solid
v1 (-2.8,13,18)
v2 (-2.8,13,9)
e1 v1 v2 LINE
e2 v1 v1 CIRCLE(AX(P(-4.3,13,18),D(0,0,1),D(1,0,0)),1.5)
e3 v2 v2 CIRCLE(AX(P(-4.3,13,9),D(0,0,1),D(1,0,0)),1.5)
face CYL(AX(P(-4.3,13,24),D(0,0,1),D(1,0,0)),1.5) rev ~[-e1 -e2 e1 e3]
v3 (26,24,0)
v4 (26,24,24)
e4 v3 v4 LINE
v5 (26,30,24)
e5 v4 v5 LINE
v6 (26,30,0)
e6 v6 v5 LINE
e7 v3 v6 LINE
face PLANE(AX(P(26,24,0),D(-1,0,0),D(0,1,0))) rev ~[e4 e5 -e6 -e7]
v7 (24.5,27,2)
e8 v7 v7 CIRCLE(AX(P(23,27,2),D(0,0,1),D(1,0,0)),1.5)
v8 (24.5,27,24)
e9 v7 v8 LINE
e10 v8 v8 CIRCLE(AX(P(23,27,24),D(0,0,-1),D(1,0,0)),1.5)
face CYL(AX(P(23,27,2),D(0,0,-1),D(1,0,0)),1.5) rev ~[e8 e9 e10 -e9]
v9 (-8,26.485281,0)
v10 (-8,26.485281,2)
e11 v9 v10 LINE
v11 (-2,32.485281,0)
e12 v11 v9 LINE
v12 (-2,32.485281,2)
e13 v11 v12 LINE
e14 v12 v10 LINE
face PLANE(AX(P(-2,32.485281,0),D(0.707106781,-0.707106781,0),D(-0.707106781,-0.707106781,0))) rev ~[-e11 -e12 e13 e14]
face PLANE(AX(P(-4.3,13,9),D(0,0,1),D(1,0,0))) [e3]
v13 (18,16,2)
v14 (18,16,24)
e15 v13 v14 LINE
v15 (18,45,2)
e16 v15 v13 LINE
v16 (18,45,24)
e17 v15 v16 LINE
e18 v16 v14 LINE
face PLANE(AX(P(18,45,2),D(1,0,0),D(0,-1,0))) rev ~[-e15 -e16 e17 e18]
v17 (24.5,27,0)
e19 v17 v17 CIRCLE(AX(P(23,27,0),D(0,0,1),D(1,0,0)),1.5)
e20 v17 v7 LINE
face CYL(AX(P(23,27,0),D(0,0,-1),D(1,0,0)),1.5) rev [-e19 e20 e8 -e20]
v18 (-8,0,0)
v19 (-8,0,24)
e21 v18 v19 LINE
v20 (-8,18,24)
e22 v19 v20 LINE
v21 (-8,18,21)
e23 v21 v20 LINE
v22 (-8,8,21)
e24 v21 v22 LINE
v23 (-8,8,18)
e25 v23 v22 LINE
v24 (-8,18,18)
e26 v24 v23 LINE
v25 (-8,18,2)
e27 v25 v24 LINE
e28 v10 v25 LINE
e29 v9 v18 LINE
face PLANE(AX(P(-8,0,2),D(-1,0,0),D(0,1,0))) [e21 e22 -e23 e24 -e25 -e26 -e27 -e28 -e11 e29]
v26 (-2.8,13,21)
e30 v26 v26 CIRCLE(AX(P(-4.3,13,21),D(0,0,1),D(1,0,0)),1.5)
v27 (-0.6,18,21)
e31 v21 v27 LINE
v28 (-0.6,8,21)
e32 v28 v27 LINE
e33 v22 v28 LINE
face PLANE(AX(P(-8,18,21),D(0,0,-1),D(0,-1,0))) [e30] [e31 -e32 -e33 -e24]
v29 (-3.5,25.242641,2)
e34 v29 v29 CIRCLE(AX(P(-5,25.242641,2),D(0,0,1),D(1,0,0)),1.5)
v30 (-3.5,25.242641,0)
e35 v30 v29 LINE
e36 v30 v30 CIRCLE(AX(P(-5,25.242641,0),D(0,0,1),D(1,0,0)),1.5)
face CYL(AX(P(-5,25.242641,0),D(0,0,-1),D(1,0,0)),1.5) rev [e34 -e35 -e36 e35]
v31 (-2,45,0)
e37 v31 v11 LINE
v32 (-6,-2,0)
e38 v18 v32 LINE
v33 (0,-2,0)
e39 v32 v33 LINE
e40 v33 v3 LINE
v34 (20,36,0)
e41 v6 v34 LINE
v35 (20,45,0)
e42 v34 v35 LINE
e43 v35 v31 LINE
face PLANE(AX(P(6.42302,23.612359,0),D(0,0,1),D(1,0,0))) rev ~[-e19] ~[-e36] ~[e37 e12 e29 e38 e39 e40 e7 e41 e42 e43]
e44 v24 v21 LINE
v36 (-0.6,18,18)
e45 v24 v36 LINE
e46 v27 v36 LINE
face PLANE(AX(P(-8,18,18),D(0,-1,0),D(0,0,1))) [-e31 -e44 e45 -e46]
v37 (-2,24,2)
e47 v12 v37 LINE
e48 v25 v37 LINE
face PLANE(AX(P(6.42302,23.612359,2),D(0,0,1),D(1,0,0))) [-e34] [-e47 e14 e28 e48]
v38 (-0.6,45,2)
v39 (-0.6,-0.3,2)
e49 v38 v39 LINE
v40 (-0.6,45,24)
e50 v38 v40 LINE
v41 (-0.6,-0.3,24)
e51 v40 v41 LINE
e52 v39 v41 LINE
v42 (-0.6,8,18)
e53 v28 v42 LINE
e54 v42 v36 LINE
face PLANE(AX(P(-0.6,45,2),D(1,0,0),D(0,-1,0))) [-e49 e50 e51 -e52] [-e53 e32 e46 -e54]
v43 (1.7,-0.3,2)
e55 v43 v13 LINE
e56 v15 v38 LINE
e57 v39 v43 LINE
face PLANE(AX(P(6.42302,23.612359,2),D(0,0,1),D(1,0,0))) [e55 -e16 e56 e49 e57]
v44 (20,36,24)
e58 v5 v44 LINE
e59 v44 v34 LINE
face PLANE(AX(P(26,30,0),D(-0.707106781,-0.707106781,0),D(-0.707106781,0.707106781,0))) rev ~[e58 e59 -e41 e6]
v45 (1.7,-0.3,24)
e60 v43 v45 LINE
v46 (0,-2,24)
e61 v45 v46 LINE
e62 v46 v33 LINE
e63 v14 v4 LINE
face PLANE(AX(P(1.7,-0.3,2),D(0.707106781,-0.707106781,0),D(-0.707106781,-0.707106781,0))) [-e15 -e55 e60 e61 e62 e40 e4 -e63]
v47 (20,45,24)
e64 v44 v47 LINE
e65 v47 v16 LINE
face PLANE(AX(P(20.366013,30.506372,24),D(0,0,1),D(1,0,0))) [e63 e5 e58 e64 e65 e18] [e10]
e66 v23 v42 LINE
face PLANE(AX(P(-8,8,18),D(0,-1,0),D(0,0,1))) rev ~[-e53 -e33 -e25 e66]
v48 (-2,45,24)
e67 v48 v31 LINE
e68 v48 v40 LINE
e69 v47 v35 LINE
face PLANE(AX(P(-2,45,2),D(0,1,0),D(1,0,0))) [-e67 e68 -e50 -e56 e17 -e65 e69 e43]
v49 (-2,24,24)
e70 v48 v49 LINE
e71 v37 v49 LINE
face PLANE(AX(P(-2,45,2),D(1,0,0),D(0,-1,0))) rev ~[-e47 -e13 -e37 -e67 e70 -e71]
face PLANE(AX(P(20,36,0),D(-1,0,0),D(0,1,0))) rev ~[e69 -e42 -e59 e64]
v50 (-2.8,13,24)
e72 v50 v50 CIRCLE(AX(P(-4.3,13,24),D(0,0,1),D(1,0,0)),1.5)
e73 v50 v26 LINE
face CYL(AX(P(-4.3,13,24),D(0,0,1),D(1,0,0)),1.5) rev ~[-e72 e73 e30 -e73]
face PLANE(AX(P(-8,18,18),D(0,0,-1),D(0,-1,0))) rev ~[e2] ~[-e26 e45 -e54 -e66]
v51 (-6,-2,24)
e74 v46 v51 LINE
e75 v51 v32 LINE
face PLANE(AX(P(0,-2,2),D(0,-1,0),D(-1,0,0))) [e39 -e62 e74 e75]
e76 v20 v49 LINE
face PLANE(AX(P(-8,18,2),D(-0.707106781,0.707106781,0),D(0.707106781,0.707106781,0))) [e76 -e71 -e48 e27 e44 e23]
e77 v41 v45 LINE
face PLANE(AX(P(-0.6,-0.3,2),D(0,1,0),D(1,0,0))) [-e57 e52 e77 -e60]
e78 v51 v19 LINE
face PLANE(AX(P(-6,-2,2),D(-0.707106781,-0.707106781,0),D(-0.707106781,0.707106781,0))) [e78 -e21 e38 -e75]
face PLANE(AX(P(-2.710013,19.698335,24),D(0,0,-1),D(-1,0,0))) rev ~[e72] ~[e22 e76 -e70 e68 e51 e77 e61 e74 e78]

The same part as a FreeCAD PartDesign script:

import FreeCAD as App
import Part
import Sketcher
from FreeCAD import Vector
Q = App.Units.Quantity


def add_polygon(sketch, points):
    """Adds a closed chain of lines whose ends are joined by coincident constraints."""
    first, n = sketch.GeometryCount, len(points)
    for a, b in zip(points, points[1:] + points[:1]):
        sketch.addGeometry(Part.LineSegment(App.Vector(*a, 0), App.Vector(*b, 0)), False)
    for i in range(n):
        sketch.addConstraint(Sketcher.Constraint("Coincident", first + i, 2, first + (i + 1) % n, 1))

doc = App.newDocument("Part")
params = doc.addObject("Spreadsheet::Sheet", "Params")
for row, (alias, value) in enumerate([
    ("sketch1_diameter", "3 mm"),
    ("sketch1_width", "6 mm"),
    ("sketch1_width2", "22 mm"),
    ("sketch1_height", "9 mm"),
    ("pad1_length", "2 mm"),
    ("sketch2_width", "6 mm"),
    ("sketch2_width2", "2 mm"),
    ("sketch2_height", "21 mm"),
    ("sketch2_height2", "18 mm"),
    ("sketch2_height3", "29 mm"),
    ("pad2_length", "22 mm"),
    ("sketch3_diameter", "3 mm"),
    ("pocket1_length", "32 mm"),
    ("sketch4_diameter", "3 mm"),
    ("pocket2_length", "15 mm"),
    ("sketch5_width", "10 mm"),
    ("sketch5_height", "3 mm"),
    ("pocket3_length", "8 mm"),
], start=1):
    params.set(f"A{row}", alias)
    params.set(f"B{row}", "=" + value)
    params.setAlias(f"B{row}", alias)

body = doc.addObject("PartDesign::Body", "Body")

sketch1 = body.newObject("Sketcher::SketchObject", "Sketch")
sketch1.AttachmentSupport = (doc.getObject("XY_Plane"), [""])
sketch1.MapMode = "FlatFace"
add_polygon(sketch1, [(-6, -2), (0, -2), (26, 24), (26, 30), (20, 36), (20, 45), (-2, 45), (-2, 32.485281), (-8, 26.485281), (-8, 0)])
sketch1.addGeometry(Part.Circle(Vector(-5, 25.242641, 0), Vector(0, 0, 1), 1.5), False)
sketch1.addGeometry(Part.Circle(Vector(23, 27, 0), Vector(0, 0, 1), 1.5), False)
sketch1.addConstraint([
    Sketcher.Constraint("Horizontal", 0),
    Sketcher.Constraint("Vertical", 2),
    Sketcher.Constraint("Vertical", 4),
    Sketcher.Constraint("Horizontal", 5),
    Sketcher.Constraint("Vertical", 6),
    Sketcher.Constraint("Vertical", 8),
    Sketcher.Constraint("Equal", 10, 11),
    Sketcher.Constraint("PointOnObject", 0, 2, -2),
    Sketcher.Constraint("PointOnObject", 8, 2, -1),
    Sketcher.Constraint("Perpendicular", 1, 3),
    Sketcher.Constraint("Perpendicular", 3, 7),
    Sketcher.Constraint("Perpendicular", 7, 9),
    Sketcher.Constraint("Equal", 0, 2),
    Sketcher.Constraint("Equal", 3, 7),
    Sketcher.Constraint("Diameter", 10, Q("3 mm")),
    Sketcher.Constraint("DistanceX", 0, 1, 0, 2, Q("6 mm")),
    Sketcher.Constraint("DistanceX", 5, 2, 5, 1, Q("22 mm")),
    Sketcher.Constraint("DistanceY", 4, 1, 4, 2, Q("9 mm")),
    Sketcher.Constraint("Angle", 1, Q("45 deg")),
    Sketcher.Constraint("DistanceX", 10, 3, -1, 1, Q("5 mm")),
    Sketcher.Constraint("DistanceX", -1, 1, 11, 3, Q("23 mm")),
    Sketcher.Constraint("DistanceY", -1, 1, 11, 3, Q("27 mm")),
    Sketcher.Constraint("DistanceY", 0, 2, -1, 1, Q("2 mm")),
    Sketcher.Constraint("DistanceX", -1, 1, 1, 2, Q("26 mm")),
    Sketcher.Constraint("DistanceY", 6, 2, 6, 1, Q("12.514719 mm")),
    Sketcher.Constraint("DistanceY", -1, 1, 10, 3, Q("25.242641 mm")),
])
sketch1.setExpression("Constraints[24]", "Params.sketch1_diameter")
sketch1.setExpression("Constraints[25]", "Params.sketch1_width")
sketch1.setExpression("Constraints[26]", "Params.sketch1_width2")
sketch1.setExpression("Constraints[27]", "Params.sketch1_height")
pad1 = body.newObject("PartDesign::Pad", "Pad")
pad1.Profile = sketch1
pad1.setExpression("Length", "Params.pad1_length")

sketch2 = body.newObject("Sketcher::SketchObject", "Sketch001")
sketch2.AttachmentSupport = (doc.getObject("XY_Plane"), [""])
sketch2.MapMode = "FlatFace"
sketch2.AttachmentOffset = App.Placement(Vector(0, 0, 2), App.Rotation())
add_polygon(sketch2, [(-2, 45), (-2, 24), (-8, 18), (-8, 0), (-6, -2), (0, -2), (1.7, -0.3), (-0.6, -0.3), (-0.6, 45)])
add_polygon(sketch2, [(20, 45), (18, 45), (18, 16), (26, 24), (26, 30), (20, 36)])
sketch2.addConstraint([
    Sketcher.Constraint("Vertical", 0),
    Sketcher.Constraint("Vertical", 2),
    Sketcher.Constraint("Horizontal", 4),
    Sketcher.Constraint("Horizontal", 6),
    Sketcher.Constraint("Vertical", 7),
    Sketcher.Constraint("Horizontal", 8),
    Sketcher.Constraint("Horizontal", 9),
    Sketcher.Constraint("Vertical", 10),
    Sketcher.Constraint("Vertical", 12),
    Sketcher.Constraint("Vertical", 14),
    Sketcher.Constraint("PointOnObject", 2, 2, -1),
    Sketcher.Constraint("PointOnObject", 4, 2, -2),
    Sketcher.Constraint("Perpendicular", 1, 3),
    Sketcher.Constraint("Perpendicular", 3, 5),
    Sketcher.Constraint("Parallel", 5, 11),
    Sketcher.Constraint("Perpendicular", 11, 13),
    Sketcher.Constraint("Horizontal", 8, 2, 9, 2),
    Sketcher.Constraint("Horizontal", 0, 2, 11, 2),
    Sketcher.Constraint("Equal", 4, 12),
    Sketcher.Constraint("Equal", 1, 13),
    Sketcher.Constraint("DistanceX", 4, 1, 4, 2, Q("6 mm")),
    Sketcher.Constraint("DistanceX", 9, 2, 9, 1, Q("2 mm")),
    Sketcher.Constraint("DistanceY", 0, 2, 0, 1, Q("21 mm")),
    Sketcher.Constraint("DistanceY", 2, 2, 2, 1, Q("18 mm")),
    Sketcher.Constraint("DistanceY", 10, 2, 10, 1, Q("29 mm")),
    Sketcher.Constraint("DistanceY", 14, 1, 14, 2, Q("9 mm")),
    Sketcher.Constraint("DistanceX", 6, 2, 6, 1, Q("2.3 mm")),
    Sketcher.Constraint("DistanceX", 8, 2, 8, 1, Q("1.4 mm")),
    Sketcher.Constraint("DistanceY", 7, 1, 7, 2, Q("45.3 mm")),
    Sketcher.Constraint("DistanceX", -1, 1, 9, 2, Q("18 mm")),
])
sketch2.setExpression("Constraints[35]", "Params.sketch2_width")
sketch2.setExpression("Constraints[36]", "Params.sketch2_width2")
sketch2.setExpression("Constraints[37]", "Params.sketch2_height")
sketch2.setExpression("Constraints[38]", "Params.sketch2_height2")
sketch2.setExpression("Constraints[39]", "Params.sketch2_height3")
pad2 = body.newObject("PartDesign::Pad", "Pad001")
pad2.Profile = sketch2
pad2.setExpression("Length", "Params.pad2_length")

sketch3 = body.newObject("Sketcher::SketchObject", "Sketch002")
sketch3.AttachmentSupport = (doc.getObject("XY_Plane"), [""])
sketch3.MapMode = "FlatFace"
sketch3.AttachmentOffset = App.Placement(Vector(0, 0, 2), App.Rotation())
sketch3.addGeometry(Part.Circle(Vector(23, 27, 0), Vector(0, 0, 1), 1.5), False)
sketch3.addConstraint([
    Sketcher.Constraint("Diameter", 0, Q("3 mm")),
    Sketcher.Constraint("DistanceX", -1, 1, 0, 3, Q("23 mm")),
    Sketcher.Constraint("DistanceY", -1, 1, 0, 3, Q("27 mm")),
])
sketch3.setExpression("Constraints[0]", "Params.sketch3_diameter")
pocket1 = body.newObject("PartDesign::Pocket", "Pocket")
pocket1.Profile = sketch3
pocket1.setExpression("Length", "Params.pocket1_length")
pocket1.Reversed = True

sketch4 = body.newObject("Sketcher::SketchObject", "Sketch003")
sketch4.AttachmentSupport = (doc.getObject("XY_Plane"), [""])
sketch4.MapMode = "FlatFace"
sketch4.AttachmentOffset = App.Placement(Vector(0, 0, 24), App.Rotation())
sketch4.addGeometry(Part.Circle(Vector(-4.3, 13, 0), Vector(0, 0, 1), 1.5), False)
sketch4.addConstraint([
    Sketcher.Constraint("Diameter", 0, Q("3 mm")),
    Sketcher.Constraint("DistanceY", -1, 1, 0, 3, Q("13 mm")),
    Sketcher.Constraint("DistanceX", 0, 3, -1, 1, Q("4.3 mm")),
])
sketch4.setExpression("Constraints[0]", "Params.sketch4_diameter")
pocket2 = body.newObject("PartDesign::Pocket", "Pocket001")
pocket2.Profile = sketch4
pocket2.setExpression("Length", "Params.pocket2_length")

sketch5 = body.newObject("Sketcher::SketchObject", "Sketch004")
sketch5.AttachmentSupport = (doc.getObject("YZ_Plane"), [""])
sketch5.MapMode = "FlatFace"
sketch5.AttachmentOffset = App.Placement(Vector(0, 0, -8), App.Rotation())
add_polygon(sketch5, [(18, 21), (18, 18), (8, 18), (8, 21)])
sketch5.addConstraint([
    Sketcher.Constraint("Vertical", 0),
    Sketcher.Constraint("Horizontal", 1),
    Sketcher.Constraint("Vertical", 2),
    Sketcher.Constraint("Horizontal", 3),
    Sketcher.Constraint("DistanceX", 1, 2, 1, 1, Q("10 mm")),
    Sketcher.Constraint("DistanceY", 0, 2, 0, 1, Q("3 mm")),
    Sketcher.Constraint("DistanceX", -1, 1, 0, 2, Q("18 mm")),
    Sketcher.Constraint("DistanceY", -1, 1, 0, 2, Q("18 mm")),
])
sketch5.setExpression("Constraints[8]", "Params.sketch5_width")
sketch5.setExpression("Constraints[9]", "Params.sketch5_height")
pocket3 = body.newObject("PartDesign::Pocket", "Pocket002")
pocket3.Profile = sketch5
pocket3.setExpression("Length", "Params.pocket3_length")
pocket3.Reversed = True

doc.recompute()
